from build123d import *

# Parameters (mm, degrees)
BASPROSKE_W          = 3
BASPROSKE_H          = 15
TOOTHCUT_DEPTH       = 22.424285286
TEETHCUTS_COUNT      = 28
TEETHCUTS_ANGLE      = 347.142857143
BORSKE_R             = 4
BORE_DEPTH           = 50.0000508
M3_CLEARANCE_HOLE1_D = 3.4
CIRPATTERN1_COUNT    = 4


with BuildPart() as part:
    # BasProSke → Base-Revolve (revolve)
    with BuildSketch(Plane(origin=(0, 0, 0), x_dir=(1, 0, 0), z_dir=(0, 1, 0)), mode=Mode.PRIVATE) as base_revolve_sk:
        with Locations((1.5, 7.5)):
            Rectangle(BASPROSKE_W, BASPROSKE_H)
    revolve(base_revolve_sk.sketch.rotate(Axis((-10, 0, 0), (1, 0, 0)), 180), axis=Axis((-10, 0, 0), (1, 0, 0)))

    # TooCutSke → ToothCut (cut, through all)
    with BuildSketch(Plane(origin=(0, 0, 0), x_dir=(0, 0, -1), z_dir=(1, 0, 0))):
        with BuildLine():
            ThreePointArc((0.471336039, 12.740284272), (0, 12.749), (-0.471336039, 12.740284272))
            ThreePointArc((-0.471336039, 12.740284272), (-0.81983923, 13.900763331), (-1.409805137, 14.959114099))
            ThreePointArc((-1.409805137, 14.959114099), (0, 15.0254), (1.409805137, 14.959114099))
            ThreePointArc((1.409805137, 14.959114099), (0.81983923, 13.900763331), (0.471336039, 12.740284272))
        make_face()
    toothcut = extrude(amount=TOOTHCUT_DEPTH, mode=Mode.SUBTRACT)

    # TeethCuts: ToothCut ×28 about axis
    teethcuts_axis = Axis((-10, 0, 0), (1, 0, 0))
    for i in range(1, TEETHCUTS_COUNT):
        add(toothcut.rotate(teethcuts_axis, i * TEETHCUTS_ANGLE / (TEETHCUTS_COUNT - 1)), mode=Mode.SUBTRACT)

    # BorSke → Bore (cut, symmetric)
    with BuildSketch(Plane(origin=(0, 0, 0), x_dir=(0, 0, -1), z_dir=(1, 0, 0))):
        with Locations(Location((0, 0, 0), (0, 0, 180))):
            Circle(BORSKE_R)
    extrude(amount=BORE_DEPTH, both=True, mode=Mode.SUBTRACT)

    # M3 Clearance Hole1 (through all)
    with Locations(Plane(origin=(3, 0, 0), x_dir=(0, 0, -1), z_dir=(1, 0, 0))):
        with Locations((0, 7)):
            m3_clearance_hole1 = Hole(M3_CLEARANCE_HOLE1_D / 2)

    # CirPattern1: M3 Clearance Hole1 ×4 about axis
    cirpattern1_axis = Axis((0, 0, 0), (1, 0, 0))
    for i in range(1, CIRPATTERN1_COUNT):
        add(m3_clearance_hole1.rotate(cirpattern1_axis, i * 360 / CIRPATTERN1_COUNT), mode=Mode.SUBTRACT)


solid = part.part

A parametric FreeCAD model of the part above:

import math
import FreeCAD as App
import Part
import Sketcher
Q = App.Units.Quantity

doc = App.newDocument("Part")
body = doc.addObject("PartDesign::Body", "Body")

sketch1 = doc.addObject("Sketcher::SketchObject", "Sketch")
body.addObject(sketch1)
sketch1.AttachmentSupport = (doc.XZ_Plane, [""])
sketch1.MapMode = "FlatFace"
sketch1.addGeometry([
    Part.LineSegment(App.Vector(0, -15, 0), App.Vector(0, 0, 0)),
    Part.LineSegment(App.Vector(0, 0, 0), App.Vector(3, 0, 0)),
    Part.LineSegment(App.Vector(3, 0, 0), App.Vector(3, -15, 0)),
    Part.LineSegment(App.Vector(3, -15, 0), App.Vector(0, -15, 0)),
], False)
sketch1.addConstraint([
    Sketcher.Constraint("Coincident", 0, 2, 1, 1),
    Sketcher.Constraint("Coincident", 1, 2, 2, 1),
    Sketcher.Constraint("Coincident", 2, 2, 3, 1),
    Sketcher.Constraint("Coincident", 3, 2, 0, 1),
    Sketcher.Constraint("Vertical", 0),
    Sketcher.Constraint("Horizontal", 1),
    Sketcher.Constraint("Vertical", 2),
    Sketcher.Constraint("Horizontal", 3),
    Sketcher.Constraint("Coincident", 0, 2, -1, 1),
    Sketcher.Constraint("DistanceX", 1, 1, 1, 2, Q("3 mm")),
    Sketcher.Constraint("DistanceY", 0, 1, 0, 2, Q("15 mm")),
])
revolution = doc.addObject("PartDesign::Revolution", "Revolution")
body.addObject(revolution)
revolution.Profile = sketch1
revolution.ReferenceAxis = (sketch1, ["H_Axis"])
revolution.Angle = 360

sketch2 = doc.addObject("Sketcher::SketchObject", "Sketch001")
body.addObject(sketch2)
sketch2.AttachmentSupport = (doc.YZ_Plane, [""])
sketch2.MapMode = "FlatFace"
sketch2.addGeometry([
    Part.ArcOfCircle(Part.Circle(App.Vector(0, 0, 0), App.Vector(0, 0, 1), 12.749), math.radians(-2.118733), math.radians(2.118733)),
    Part.ArcOfCircle(Part.Circle(App.Vector(11.719305, -5.977478, 0), App.Vector(0, 0, 1), 5.6), math.radians(54.652268), math.radians(79.49521)),
    Part.ArcOfCircle(Part.Circle(App.Vector(0, 0, 0), App.Vector(0, 0, 1), 15.0254), math.radians(-5.383875), math.radians(5.383875)),
    Part.ArcOfCircle(Part.Circle(App.Vector(11.719305, 5.977478, 0), App.Vector(0, 0, 1), 5.6), math.radians(-79.49521), math.radians(-54.652268)),
], False)
sketch2.addConstraint([
    Sketcher.Constraint("Coincident", 0, 1, 1, 2),
    Sketcher.Constraint("Coincident", 1, 1, 2, 1),
    Sketcher.Constraint("Coincident", 2, 2, 3, 2),
    Sketcher.Constraint("Coincident", 3, 1, 0, 2),
    Sketcher.Constraint("Coincident", 0, 3, -1, 1),
    Sketcher.Constraint("Coincident", 2, 3, -1, 1),
    Sketcher.Constraint("Equal", 1, 3),
    Sketcher.Constraint("Symmetric", 1, 3, 3, 3, -1),
    Sketcher.Constraint("Radius", 1, Q("5.6 mm")),
    Sketcher.Constraint("Radius", 0, Q("12.749 mm")),
    Sketcher.Constraint("Radius", 2, Q("15.0254 mm")),
    Sketcher.Constraint("DistanceY", 1, 3, -1, 1, Q("5.977478 mm")),
    Sketcher.Constraint("DistanceX", 1, 3, 0, 1, Q("1.020979 mm")),
])
pocket1 = doc.addObject("PartDesign::Pocket", "Pocket")
body.addObject(pocket1)
pocket1.Profile = sketch2
pocket1.Type = "ThroughAll"
pocket1.Reversed = True
doc.recompute()

polarpattern = doc.addObject("PartDesign::PolarPattern", "PolarPattern")
body.addObject(polarpattern)
polarpattern.Originals = [pocket1]
polarpattern.Axis = (doc.X_Axis, [""])
polarpattern.Angle = 360
polarpattern.Occurrences = 28
body.Tip = polarpattern

sketch3 = doc.addObject("Sketcher::SketchObject", "Sketch002")
body.addObject(sketch3)
sketch3.AttachmentSupport = (doc.YZ_Plane, [""])
sketch3.MapMode = "FlatFace"
sketch3.addGeometry(Part.Circle(App.Vector(0, 0, 0), App.Vector(0, 0, 1), 4), False)
sketch3.addConstraint([
    Sketcher.Constraint("Coincident", 0, 3, -1, 1),
    Sketcher.Constraint("Diameter", 0, Q("8 mm")),
])
pocket2 = doc.addObject("PartDesign::Pocket", "Pocket001")
body.addObject(pocket2)
pocket2.Profile = sketch3
pocket2.Length = 100.000102
pocket2.Midplane = True

sketch4 = doc.addObject("Sketcher::SketchObject", "Sketch003")
body.addObject(sketch4)
sketch4.AttachmentSupport = (doc.YZ_Plane, [""])
sketch4.MapMode = "FlatFace"
sketch4.AttachmentOffset = App.Placement(App.Vector(0, 0, 3), App.Rotation())
sketch4.addGeometry(Part.Circle(App.Vector(7, 0, 0), App.Vector(0, 0, 1), 1.7), False)
sketch4.addConstraint([
    Sketcher.Constraint("PointOnObject", 0, 3, -1),
    Sketcher.Constraint("Diameter", 0, Q("3.4 mm")),
    Sketcher.Constraint("DistanceX", -1, 1, 0, 3, Q("7 mm")),
])
doc.recompute()
hole = doc.addObject("PartDesign::Hole", "Hole")
body.addObject(hole)
hole.Profile = sketch4
hole.ThreadType = "None"
hole.Diameter = 3.4
hole.DepthType = "ThroughAll"
doc.recompute()

polarpattern2 = doc.addObject("PartDesign::PolarPattern", "PolarPattern001")
body.addObject(polarpattern2)
polarpattern2.Originals = [hole]
polarpattern2.Axis = (doc.X_Axis, [""])
polarpattern2.Angle = 360
polarpattern2.Occurrences = 4
body.Tip = polarpattern2

doc.recompute()
